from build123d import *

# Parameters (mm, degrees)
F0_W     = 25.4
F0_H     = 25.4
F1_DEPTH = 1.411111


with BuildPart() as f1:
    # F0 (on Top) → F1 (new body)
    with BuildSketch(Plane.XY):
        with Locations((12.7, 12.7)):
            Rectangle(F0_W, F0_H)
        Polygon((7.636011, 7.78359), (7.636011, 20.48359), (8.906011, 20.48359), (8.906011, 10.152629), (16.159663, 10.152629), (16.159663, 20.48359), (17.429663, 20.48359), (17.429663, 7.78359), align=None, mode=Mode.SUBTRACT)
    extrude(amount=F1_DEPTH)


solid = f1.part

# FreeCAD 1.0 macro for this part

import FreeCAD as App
import Part
import Sketcher
from FreeCAD import Vector
Q = App.Units.Quantity


def add_polygon(sketch, points):
    """Adds a closed chain of lines whose ends are joined by coincident constraints."""
    first, n = sketch.GeometryCount, len(points)
    for a, b in zip(points, points[1:] + points[:1]):
        sketch.addGeometry(Part.LineSegment(App.Vector(*a, 0), App.Vector(*b, 0)), False)
    for i in range(n):
        sketch.addConstraint(Sketcher.Constraint("Coincident", first + i, 2, first + (i + 1) % n, 1))

doc = App.newDocument("Part")
body = doc.addObject("PartDesign::Body", "Body")

sketch1 = body.newObject("Sketcher::SketchObject", "Sketch")
sketch1.AttachmentSupport = (doc.getObject("XY_Plane"), [""])
sketch1.MapMode = "FlatFace"
add_polygon(sketch1, [(0, 25.4), (0, 0), (25.4, 0), (25.4, 25.4)])
add_polygon(sketch1, [(17.429663, 7.78359), (7.636011, 7.78359), (7.636011, 20.48359), (8.906011, 20.48359), (8.906011, 10.152629), (16.159663, 10.152629), (16.159663, 20.48359), (17.429663, 20.48359)])
sketch1.addConstraint([
    Sketcher.Constraint("Vertical", 0),
    Sketcher.Constraint("Horizontal", 1),
    Sketcher.Constraint("Vertical", 2),
    Sketcher.Constraint("Horizontal", 3),
    Sketcher.Constraint("Horizontal", 4),
    Sketcher.Constraint("Vertical", 5),
    Sketcher.Constraint("Horizontal", 6),
    Sketcher.Constraint("Vertical", 7),
    Sketcher.Constraint("Horizontal", 8),
    Sketcher.Constraint("Vertical", 9),
    Sketcher.Constraint("Horizontal", 10),
    Sketcher.Constraint("Vertical", 11),
    Sketcher.Constraint("Coincident", 0, 2, -1, 1),
    Sketcher.Constraint("Horizontal", 6, 2, 9, 2),
    Sketcher.Constraint("Equal", 6, 10),
    Sketcher.Constraint("Equal", 3, 0),
    Sketcher.Constraint("DistanceX", 1, 1, 1, 2, Q("1 in")),
    Sketcher.Constraint("DistanceY", 5, 1, 5, 2, Q("0.5 in")),
    Sketcher.Constraint("DistanceX", 6, 1, 6, 2, Q("0.05 in")),
    Sketcher.Constraint("DistanceX", 8, 1, 8, 2, 7.253652),
    Sketcher.Constraint("DistanceY", 7, 2, 7, 1, 10.330961),
    Sketcher.Constraint("DistanceX", -1, 1, 4, 2, 7.636011),
    Sketcher.Constraint("DistanceY", -1, 1, 4, 2, 7.78359),
])
pad1 = body.newObject("PartDesign::Pad", "Pad")
pad1.Profile = sketch1
pad1.Length = 1.411111

doc.recompute()
